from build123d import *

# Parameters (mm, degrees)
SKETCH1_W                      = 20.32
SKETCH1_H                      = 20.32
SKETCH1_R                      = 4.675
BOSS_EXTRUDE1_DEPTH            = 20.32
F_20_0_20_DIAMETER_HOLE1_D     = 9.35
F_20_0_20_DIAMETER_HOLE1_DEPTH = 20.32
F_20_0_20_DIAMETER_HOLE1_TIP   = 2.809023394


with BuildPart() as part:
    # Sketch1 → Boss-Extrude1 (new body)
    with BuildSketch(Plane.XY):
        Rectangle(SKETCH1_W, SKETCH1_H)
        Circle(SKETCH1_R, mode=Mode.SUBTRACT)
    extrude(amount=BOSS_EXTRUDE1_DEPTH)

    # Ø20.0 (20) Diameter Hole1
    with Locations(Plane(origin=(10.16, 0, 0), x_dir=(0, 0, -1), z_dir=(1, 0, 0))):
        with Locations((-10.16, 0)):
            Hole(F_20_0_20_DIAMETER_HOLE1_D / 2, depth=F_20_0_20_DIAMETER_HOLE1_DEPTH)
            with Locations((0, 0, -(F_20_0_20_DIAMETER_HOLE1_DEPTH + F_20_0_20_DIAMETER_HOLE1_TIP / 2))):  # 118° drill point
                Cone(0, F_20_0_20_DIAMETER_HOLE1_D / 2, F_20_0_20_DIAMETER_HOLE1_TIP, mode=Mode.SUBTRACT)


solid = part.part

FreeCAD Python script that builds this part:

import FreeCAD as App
import Part
import Sketcher
Q = App.Units.Quantity

doc = App.newDocument("Part")
params = doc.addObject("Spreadsheet::Sheet", "Params")
for row, (alias, value) in enumerate([
    ("sketch1_width", "0.8 in"),
    ("pad1_length", "0.8 in"),
    ("hole_diameter", "9.35 mm"),
    ("hole_depth", "0.8 in"),
], start=1):
    params.set(f"A{row}", alias)
    params.set(f"B{row}", "=" + value)
    params.setAlias(f"B{row}", alias)

body = doc.addObject("PartDesign::Body", "Body")

sketch1 = doc.addObject("Sketcher::SketchObject", "Sketch")
body.addObject(sketch1)
sketch1.AttachmentSupport = (doc.XY_Plane, [""])
sketch1.MapMode = "FlatFace"
sketch1.addGeometry([
    Part.LineSegment(App.Vector(-10.2, 10.2, 0), App.Vector(-10.2, -10.2, 0)),
    Part.LineSegment(App.Vector(-10.2, -10.2, 0), App.Vector(10.2, -10.2, 0)),
    Part.LineSegment(App.Vector(10.2, -10.2, 0), App.Vector(10.2, 10.2, 0)),
    Part.LineSegment(App.Vector(10.2, 10.2, 0), App.Vector(-10.2, 10.2, 0)),
    Part.Circle(App.Vector(0, 0, 0), App.Vector(0, 0, 1), 4.7),
], False)
sketch1.addConstraint([
    Sketcher.Constraint("Coincident", 0, 2, 1, 1),
    Sketcher.Constraint("Coincident", 1, 2, 2, 1),
    Sketcher.Constraint("Coincident", 2, 2, 3, 1),
    Sketcher.Constraint("Coincident", 3, 2, 0, 1),
    Sketcher.Constraint("Vertical", 0),
    Sketcher.Constraint("Horizontal", 1),
    Sketcher.Constraint("Vertical", 2),
    Sketcher.Constraint("Horizontal", 3),
    Sketcher.Constraint("Coincident", 4, 3, -1, 1),
    Sketcher.Constraint("Symmetric", 0, 2, 2, 2, -1, 1),
    Sketcher.Constraint("Equal", 3, 0),
    Sketcher.Constraint("DistanceX", 1, 1, 1, 2, Q("0.8 in")),
    Sketcher.Constraint("Diameter", 4, Q("9.35 mm")),
])
sketch1.setExpression("Constraints[11]", "Params.sketch1_width")
pad1 = doc.addObject("PartDesign::Pad", "Pad")
body.addObject(pad1)
pad1.Profile = sketch1
pad1.setExpression("Length", "Params.pad1_length")

sketch2 = doc.addObject("Sketcher::SketchObject", "Sketch001")
body.addObject(sketch2)
sketch2.AttachmentSupport = (doc.YZ_Plane, [""])
sketch2.MapMode = "FlatFace"
sketch2.AttachmentOffset = App.Placement(App.Vector(0, 0, 0.4 * 25.4), App.Rotation())
sketch2.addGeometry(Part.Circle(App.Vector(0, 10.2, 0), App.Vector(0, 0, 1), 4.7), False)
sketch2.addConstraint([
    Sketcher.Constraint("PointOnObject", 0, 3, -2),
    Sketcher.Constraint("DistanceY", -1, 1, 0, 3, Q("0.4 in")),
    Sketcher.Constraint("Diameter", 0, Q("9.35 mm")),
])
doc.recompute()
hole = doc.addObject("PartDesign::Hole", "Hole")
body.addObject(hole)
hole.Profile = sketch2
hole.ThreadType = "None"
hole.setExpression("Diameter", "Params.hole_diameter")
hole.DepthType = "Dimension"
hole.setExpression("Depth", "Params.hole_depth")
hole.DrillPoint = "Angled"
hole.DrillPointAngle = 118

doc.recompute()
